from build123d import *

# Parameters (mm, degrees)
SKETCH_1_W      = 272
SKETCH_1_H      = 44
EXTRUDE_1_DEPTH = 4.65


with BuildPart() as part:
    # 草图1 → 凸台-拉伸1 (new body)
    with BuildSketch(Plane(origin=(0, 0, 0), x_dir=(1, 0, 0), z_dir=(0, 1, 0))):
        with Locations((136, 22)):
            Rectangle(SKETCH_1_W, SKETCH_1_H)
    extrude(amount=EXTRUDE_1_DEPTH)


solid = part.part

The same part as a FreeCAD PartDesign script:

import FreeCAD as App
import Part
import Sketcher
from FreeCAD import Vector

doc = App.newDocument("Part")
body = doc.addObject("PartDesign::Body", "Body")

# Sketch on XZ plane
sketch1 = body.newObject("Sketcher::SketchObject", "Sketch")
sketch1.AttachmentSupport = (doc.getObject("XZ_Plane"), [""])
sketch1.MapMode = "FlatFace"
sketch1.addGeometry([
    Part.LineSegment(Vector(0, -44, 0), Vector(0, 0, 0)),
    Part.LineSegment(Vector(0, 0, 0), Vector(272, 0, 0)),
    Part.LineSegment(Vector(272, 0, 0), Vector(272, -44, 0)),
    Part.LineSegment(Vector(272, -44, 0), Vector(0, -44, 0)),
], False)
sketch1.addConstraint([
    Sketcher.Constraint("Coincident", 0, 2, 1, 1),
    Sketcher.Constraint("Coincident", 1, 2, 2, 1),
    Sketcher.Constraint("Coincident", 2, 2, 3, 1),
    Sketcher.Constraint("Coincident", 3, 2, 0, 1),
    Sketcher.Constraint("Vertical", 0),
    Sketcher.Constraint("Horizontal", 1),
    Sketcher.Constraint("Vertical", 2),
    Sketcher.Constraint("Horizontal", 3),
    Sketcher.Constraint("Coincident", 0, 2, -1, 1),
    Sketcher.Constraint("DistanceX", 1, 1, 1, 2, 272.0),
    Sketcher.Constraint("DistanceY", 0, 1, 0, 2, 44.0),
])
pad1 = body.newObject("PartDesign::Pad", "Pad")
pad1.Profile = sketch1
pad1.Length = 4.65
pad1.Reversed = True

doc.recompute()
